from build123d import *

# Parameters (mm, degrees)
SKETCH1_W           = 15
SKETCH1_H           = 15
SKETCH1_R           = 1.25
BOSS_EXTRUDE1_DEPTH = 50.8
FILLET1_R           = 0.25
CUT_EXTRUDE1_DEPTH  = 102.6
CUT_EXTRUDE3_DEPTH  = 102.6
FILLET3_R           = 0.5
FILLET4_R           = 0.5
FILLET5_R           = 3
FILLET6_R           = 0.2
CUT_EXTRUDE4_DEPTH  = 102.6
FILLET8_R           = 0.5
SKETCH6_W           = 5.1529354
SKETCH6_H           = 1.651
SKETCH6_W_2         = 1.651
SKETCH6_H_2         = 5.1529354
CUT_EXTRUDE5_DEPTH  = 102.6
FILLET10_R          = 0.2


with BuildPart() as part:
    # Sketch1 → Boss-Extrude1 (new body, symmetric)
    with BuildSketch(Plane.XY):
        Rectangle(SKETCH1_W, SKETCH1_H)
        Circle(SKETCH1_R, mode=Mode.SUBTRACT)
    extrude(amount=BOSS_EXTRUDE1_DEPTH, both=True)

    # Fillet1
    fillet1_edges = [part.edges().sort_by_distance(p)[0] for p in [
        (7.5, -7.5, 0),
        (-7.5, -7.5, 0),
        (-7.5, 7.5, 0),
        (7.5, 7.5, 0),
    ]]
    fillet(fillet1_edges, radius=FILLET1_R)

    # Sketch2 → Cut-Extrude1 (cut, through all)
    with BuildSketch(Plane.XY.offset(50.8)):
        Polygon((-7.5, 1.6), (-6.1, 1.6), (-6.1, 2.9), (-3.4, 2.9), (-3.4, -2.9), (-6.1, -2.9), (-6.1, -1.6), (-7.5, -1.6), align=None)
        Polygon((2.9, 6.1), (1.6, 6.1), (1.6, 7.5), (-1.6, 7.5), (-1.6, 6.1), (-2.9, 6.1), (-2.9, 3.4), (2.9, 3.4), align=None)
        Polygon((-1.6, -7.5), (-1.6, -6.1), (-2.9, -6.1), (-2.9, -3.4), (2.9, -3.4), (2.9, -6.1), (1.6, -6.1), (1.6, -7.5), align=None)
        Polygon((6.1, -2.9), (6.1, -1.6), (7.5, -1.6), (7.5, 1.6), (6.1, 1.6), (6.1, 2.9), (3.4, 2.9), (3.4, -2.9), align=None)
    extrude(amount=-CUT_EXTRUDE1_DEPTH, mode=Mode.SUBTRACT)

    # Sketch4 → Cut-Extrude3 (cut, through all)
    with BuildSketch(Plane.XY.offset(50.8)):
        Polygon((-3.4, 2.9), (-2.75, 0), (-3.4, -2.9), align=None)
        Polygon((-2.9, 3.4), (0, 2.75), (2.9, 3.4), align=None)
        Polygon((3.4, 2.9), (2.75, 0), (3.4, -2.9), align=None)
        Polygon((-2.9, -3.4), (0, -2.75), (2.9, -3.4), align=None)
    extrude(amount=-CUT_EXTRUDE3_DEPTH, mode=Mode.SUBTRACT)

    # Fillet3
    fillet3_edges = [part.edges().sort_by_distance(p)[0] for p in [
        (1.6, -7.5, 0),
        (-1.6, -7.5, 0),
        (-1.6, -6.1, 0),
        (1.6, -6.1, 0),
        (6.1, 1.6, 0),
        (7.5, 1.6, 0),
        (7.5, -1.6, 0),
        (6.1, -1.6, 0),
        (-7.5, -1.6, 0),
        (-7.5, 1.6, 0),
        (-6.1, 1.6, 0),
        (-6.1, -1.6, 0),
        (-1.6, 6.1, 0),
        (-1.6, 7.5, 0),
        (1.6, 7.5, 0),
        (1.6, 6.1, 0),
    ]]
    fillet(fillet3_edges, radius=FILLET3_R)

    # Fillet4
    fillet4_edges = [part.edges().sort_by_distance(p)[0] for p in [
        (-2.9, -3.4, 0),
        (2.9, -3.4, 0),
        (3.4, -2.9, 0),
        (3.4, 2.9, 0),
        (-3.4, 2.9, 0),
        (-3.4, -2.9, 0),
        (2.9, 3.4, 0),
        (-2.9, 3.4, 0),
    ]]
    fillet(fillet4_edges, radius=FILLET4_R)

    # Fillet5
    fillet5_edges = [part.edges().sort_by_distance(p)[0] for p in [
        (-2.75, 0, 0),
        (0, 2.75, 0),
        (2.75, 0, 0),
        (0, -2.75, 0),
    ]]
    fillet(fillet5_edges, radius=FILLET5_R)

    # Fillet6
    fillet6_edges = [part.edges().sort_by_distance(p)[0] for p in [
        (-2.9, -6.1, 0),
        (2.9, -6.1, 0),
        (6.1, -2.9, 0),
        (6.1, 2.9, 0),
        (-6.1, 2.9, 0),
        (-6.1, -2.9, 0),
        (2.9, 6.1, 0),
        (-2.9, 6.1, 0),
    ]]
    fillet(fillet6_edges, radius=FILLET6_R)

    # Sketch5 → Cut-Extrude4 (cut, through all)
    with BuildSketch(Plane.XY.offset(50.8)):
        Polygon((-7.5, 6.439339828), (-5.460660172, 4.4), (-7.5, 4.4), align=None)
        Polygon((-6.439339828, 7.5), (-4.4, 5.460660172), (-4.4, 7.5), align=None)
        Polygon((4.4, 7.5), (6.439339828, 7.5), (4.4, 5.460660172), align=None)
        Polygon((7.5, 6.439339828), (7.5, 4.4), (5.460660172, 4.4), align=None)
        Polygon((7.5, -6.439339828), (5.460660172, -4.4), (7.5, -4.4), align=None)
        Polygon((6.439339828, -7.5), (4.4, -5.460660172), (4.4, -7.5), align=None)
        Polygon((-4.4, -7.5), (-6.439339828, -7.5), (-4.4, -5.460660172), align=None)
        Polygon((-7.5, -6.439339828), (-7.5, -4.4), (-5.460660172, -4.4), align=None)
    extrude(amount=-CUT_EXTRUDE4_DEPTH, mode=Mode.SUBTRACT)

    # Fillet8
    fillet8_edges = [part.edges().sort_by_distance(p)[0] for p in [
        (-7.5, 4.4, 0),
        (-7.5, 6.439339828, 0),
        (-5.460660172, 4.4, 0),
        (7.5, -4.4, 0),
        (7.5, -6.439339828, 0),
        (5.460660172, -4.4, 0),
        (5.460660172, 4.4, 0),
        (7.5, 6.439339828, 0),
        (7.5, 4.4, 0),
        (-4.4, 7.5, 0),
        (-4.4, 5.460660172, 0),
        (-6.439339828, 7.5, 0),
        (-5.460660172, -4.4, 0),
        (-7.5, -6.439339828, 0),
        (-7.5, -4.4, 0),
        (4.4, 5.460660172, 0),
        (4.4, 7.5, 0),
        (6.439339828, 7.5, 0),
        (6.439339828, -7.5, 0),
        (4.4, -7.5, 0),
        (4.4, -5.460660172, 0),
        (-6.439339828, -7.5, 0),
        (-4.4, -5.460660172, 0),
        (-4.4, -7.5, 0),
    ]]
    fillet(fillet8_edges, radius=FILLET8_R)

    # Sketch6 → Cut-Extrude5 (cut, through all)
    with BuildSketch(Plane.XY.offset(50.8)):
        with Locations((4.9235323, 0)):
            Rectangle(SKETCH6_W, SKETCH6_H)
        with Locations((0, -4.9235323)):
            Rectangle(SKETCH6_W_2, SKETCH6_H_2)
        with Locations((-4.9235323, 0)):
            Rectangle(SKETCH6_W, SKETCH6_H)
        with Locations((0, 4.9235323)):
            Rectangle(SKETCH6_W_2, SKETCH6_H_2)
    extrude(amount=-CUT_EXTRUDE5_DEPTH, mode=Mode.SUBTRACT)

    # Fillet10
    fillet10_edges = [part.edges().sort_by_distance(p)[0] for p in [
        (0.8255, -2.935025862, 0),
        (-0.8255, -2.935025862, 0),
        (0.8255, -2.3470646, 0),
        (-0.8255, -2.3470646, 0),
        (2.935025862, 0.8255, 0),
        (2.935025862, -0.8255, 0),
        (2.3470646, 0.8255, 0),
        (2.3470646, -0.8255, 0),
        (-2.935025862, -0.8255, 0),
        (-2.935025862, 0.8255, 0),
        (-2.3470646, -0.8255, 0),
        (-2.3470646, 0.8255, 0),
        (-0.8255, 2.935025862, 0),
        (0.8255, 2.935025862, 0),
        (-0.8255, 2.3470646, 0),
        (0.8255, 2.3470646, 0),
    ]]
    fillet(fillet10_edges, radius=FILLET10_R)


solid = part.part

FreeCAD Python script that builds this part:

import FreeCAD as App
import Part
import Sketcher

V = App.Vector


def edges_at(feature, points):
    """Names of the edges that pass closest to the given points."""
    edges = feature.Shape.Edges
    near = lambda p: min(range(len(edges)), key=lambda i: edges[i].distToShape(Part.Vertex(*p))[0])
    return sorted({f"Edge{near(p) + 1}" for p in points})

doc = App.newDocument("Part")
body = doc.addObject("PartDesign::Body", "Body")

# Sketch on XY plane
sketch1 = body.newObject("Sketcher::SketchObject", "Sketch")
sketch1.AttachmentSupport = (doc.getObject("XY_Plane"), [""])
sketch1.MapMode = "FlatFace"
sketch1.addGeometry(Part.LineSegment(V(-7.5, 7.5, 0), V(-7.5, -7.5, 0)), False)
sketch1.addGeometry(Part.LineSegment(V(-7.5, -7.5, 0), V(7.5, -7.5, 0)), False)
sketch1.addGeometry(Part.LineSegment(V(7.5, -7.5, 0), V(7.5, 7.5, 0)), False)
sketch1.addGeometry(Part.LineSegment(V(7.5, 7.5, 0), V(-7.5, 7.5, 0)), False)
sketch1.addGeometry(Part.Circle(V(0, 0, 0), V(0, 0, 1), 1.25), False)
sketch1.addConstraint(Sketcher.Constraint("Coincident", 0, 2, 1, 1))
sketch1.addConstraint(Sketcher.Constraint("Coincident", 1, 2, 2, 1))
sketch1.addConstraint(Sketcher.Constraint("Coincident", 2, 2, 3, 1))
sketch1.addConstraint(Sketcher.Constraint("Coincident", 3, 2, 0, 1))
sketch1.addConstraint(Sketcher.Constraint("Vertical", 0))
sketch1.addConstraint(Sketcher.Constraint("Horizontal", 1))
sketch1.addConstraint(Sketcher.Constraint("Vertical", 2))
sketch1.addConstraint(Sketcher.Constraint("Horizontal", 3))
sketch1.addConstraint(Sketcher.Constraint("Coincident", 4, 3, -1, 1))
sketch1.addConstraint(Sketcher.Constraint("Symmetric", 0, 2, 2, 2, -1, 1))
sketch1.addConstraint(Sketcher.Constraint("Equal", 3, 0))
sketch1.addConstraint(Sketcher.Constraint("Diameter", 4, 2.5))
sketch1.addConstraint(Sketcher.Constraint("DistanceX", 1, 1, 1, 2, 15.0))
pad1 = body.newObject("PartDesign::Pad", "Pad")
pad1.Profile = sketch1
pad1.Length = 101.6
pad1.Midplane = True
doc.recompute()

fillet = body.newObject("PartDesign::Fillet", "Fillet")
fillet.Base = (pad1, edges_at(pad1, [
    (7.5, -7.5, 0),
    (-7.5, -7.5, 0),
    (-7.5, 7.5, 0),
    (7.5, 7.5, 0),
]))
fillet.Radius = 0.25

# Sketch on XY plane
sketch2 = body.newObject("Sketcher::SketchObject", "Sketch001")
sketch2.AttachmentSupport = (doc.getObject("XY_Plane"), [""])
sketch2.MapMode = "FlatFace"
sketch2.AttachmentOffset = App.Placement(V(0, 0, 50.8), App.Rotation())
sketch2.addGeometry(Part.LineSegment(V(-6.1, 1.6, 0), V(-7.5, 1.6, 0)), False)
sketch2.addGeometry(Part.LineSegment(V(-7.5, 1.6, 0), V(-7.5, -1.6, 0)), False)
sketch2.addGeometry(Part.LineSegment(V(-7.5, -1.6, 0), V(-6.1, -1.6, 0)), False)
sketch2.addGeometry(Part.LineSegment(V(-6.1, -1.6, 0), V(-6.1, -2.9, 0)), False)
sketch2.addGeometry(Part.LineSegment(V(-6.1, -2.9, 0), V(-3.4, -2.9, 0)), False)
sketch2.addGeometry(Part.LineSegment(V(-3.4, -2.9, 0), V(-3.4, 2.9, 0)), False)
sketch2.addGeometry(Part.LineSegment(V(-3.4, 2.9, 0), V(-6.1, 2.9, 0)), False)
sketch2.addGeometry(Part.LineSegment(V(-6.1, 2.9, 0), V(-6.1, 1.6, 0)), False)
sketch2.addGeometry(Part.LineSegment(V(2.9, 6.1, 0), V(1.6, 6.1, 0)), False)
sketch2.addGeometry(Part.LineSegment(V(1.6, 6.1, 0), V(1.6, 7.5, 0)), False)
sketch2.addGeometry(Part.LineSegment(V(1.6, 7.5, 0), V(-1.6, 7.5, 0)), False)
sketch2.addGeometry(Part.LineSegment(V(-1.6, 7.5, 0), V(-1.6, 6.1, 0)), False)
sketch2.addGeometry(Part.LineSegment(V(-1.6, 6.1, 0), V(-2.9, 6.1, 0)), False)
sketch2.addGeometry(Part.LineSegment(V(-2.9, 6.1, 0), V(-2.9, 3.4, 0)), False)
sketch2.addGeometry(Part.LineSegment(V(-2.9, 3.4, 0), V(2.9, 3.4, 0)), False)
sketch2.addGeometry(Part.LineSegment(V(2.9, 3.4, 0), V(2.9, 6.1, 0)), False)
sketch2.addGeometry(Part.LineSegment(V(-1.6, -6.1, 0), V(-1.6, -7.5, 0)), False)
sketch2.addGeometry(Part.LineSegment(V(-1.6, -7.5, 0), V(1.6, -7.5, 0)), False)
sketch2.addGeometry(Part.LineSegment(V(1.6, -7.5, 0), V(1.6, -6.1, 0)), False)
sketch2.addGeometry(Part.LineSegment(V(1.6, -6.1, 0), V(2.9, -6.1, 0)), False)
sketch2.addGeometry(Part.LineSegment(V(2.9, -6.1, 0), V(2.9, -3.4, 0)), False)
sketch2.addGeometry(Part.LineSegment(V(2.9, -3.4, 0), V(-2.9, -3.4, 0)), False)
sketch2.addGeometry(Part.LineSegment(V(-2.9, -3.4, 0), V(-2.9, -6.1, 0)), False)
sketch2.addGeometry(Part.LineSegment(V(-2.9, -6.1, 0), V(-1.6, -6.1, 0)), False)
sketch2.addGeometry(Part.LineSegment(V(6.1, -2.9, 0), V(6.1, -1.6, 0)), False)
sketch2.addGeometry(Part.LineSegment(V(6.1, -1.6, 0), V(7.5, -1.6, 0)), False)
sketch2.addGeometry(Part.LineSegment(V(7.5, -1.6, 0), V(7.5, 1.6, 0)), False)
sketch2.addGeometry(Part.LineSegment(V(7.5, 1.6, 0), V(6.1, 1.6, 0)), False)
sketch2.addGeometry(Part.LineSegment(V(6.1, 1.6, 0), V(6.1, 2.9, 0)), False)
sketch2.addGeometry(Part.LineSegment(V(6.1, 2.9, 0), V(3.4, 2.9, 0)), False)
sketch2.addGeometry(Part.LineSegment(V(3.4, 2.9, 0), V(3.4, -2.9, 0)), False)
sketch2.addGeometry(Part.LineSegment(V(3.4, -2.9, 0), V(6.1, -2.9, 0)), False)
sketch2.addConstraint(Sketcher.Constraint("Coincident", 0, 2, 1, 1))
sketch2.addConstraint(Sketcher.Constraint("Coincident", 1, 2, 2, 1))
sketch2.addConstraint(Sketcher.Constraint("Coincident", 2, 2, 3, 1))
sketch2.addConstraint(Sketcher.Constraint("Coincident", 3, 2, 4, 1))
sketch2.addConstraint(Sketcher.Constraint("Coincident", 4, 2, 5, 1))
sketch2.addConstraint(Sketcher.Constraint("Coincident", 5, 2, 6, 1))
sketch2.addConstraint(Sketcher.Constraint("Coincident", 6, 2, 7, 1))
sketch2.addConstraint(Sketcher.Constraint("Coincident", 7, 2, 0, 1))
sketch2.addConstraint(Sketcher.Constraint("Coincident", 8, 2, 9, 1))
sketch2.addConstraint(Sketcher.Constraint("Coincident", 9, 2, 10, 1))
sketch2.addConstraint(Sketcher.Constraint("Coincident", 10, 2, 11, 1))
sketch2.addConstraint(Sketcher.Constraint("Coincident", 11, 2, 12, 1))
sketch2.addConstraint(Sketcher.Constraint("Coincident", 12, 2, 13, 1))
sketch2.addConstraint(Sketcher.Constraint("Coincident", 13, 2, 14, 1))
sketch2.addConstraint(Sketcher.Constraint("Coincident", 14, 2, 15, 1))
sketch2.addConstraint(Sketcher.Constraint("Coincident", 15, 2, 8, 1))
sketch2.addConstraint(Sketcher.Constraint("Coincident", 16, 2, 17, 1))
sketch2.addConstraint(Sketcher.Constraint("Coincident", 17, 2, 18, 1))
sketch2.addConstraint(Sketcher.Constraint("Coincident", 18, 2, 19, 1))
sketch2.addConstraint(Sketcher.Constraint("Coincident", 19, 2, 20, 1))
sketch2.addConstraint(Sketcher.Constraint("Coincident", 20, 2, 21, 1))
sketch2.addConstraint(Sketcher.Constraint("Coincident", 21, 2, 22, 1))
sketch2.addConstraint(Sketcher.Constraint("Coincident", 22, 2, 23, 1))
sketch2.addConstraint(Sketcher.Constraint("Coincident", 23, 2, 16, 1))
sketch2.addConstraint(Sketcher.Constraint("Coincident", 24, 2, 25, 1))
sketch2.addConstraint(Sketcher.Constraint("Coincident", 25, 2, 26, 1))
sketch2.addConstraint(Sketcher.Constraint("Coincident", 26, 2, 27, 1))
sketch2.addConstraint(Sketcher.Constraint("Coincident", 27, 2, 28, 1))
sketch2.addConstraint(Sketcher.Constraint("Coincident", 28, 2, 29, 1))
sketch2.addConstraint(Sketcher.Constraint("Coincident", 29, 2, 30, 1))
sketch2.addConstraint(Sketcher.Constraint("Coincident", 30, 2, 31, 1))
sketch2.addConstraint(Sketcher.Constraint("Coincident", 31, 2, 24, 1))
sketch2.addConstraint(Sketcher.Constraint("Horizontal", 0))
sketch2.addConstraint(Sketcher.Constraint("Vertical", 1))
sketch2.addConstraint(Sketcher.Constraint("Horizontal", 2))
sketch2.addConstraint(Sketcher.Constraint("Vertical", 3))
sketch2.addConstraint(Sketcher.Constraint("Horizontal", 4))
sketch2.addConstraint(Sketcher.Constraint("Vertical", 5))
sketch2.addConstraint(Sketcher.Constraint("Horizontal", 6))
sketch2.addConstraint(Sketcher.Constraint("Vertical", 7))
sketch2.addConstraint(Sketcher.Constraint("Horizontal", 8))
sketch2.addConstraint(Sketcher.Constraint("Vertical", 9))
sketch2.addConstraint(Sketcher.Constraint("Horizontal", 10))
sketch2.addConstraint(Sketcher.Constraint("Vertical", 11))
sketch2.addConstraint(Sketcher.Constraint("Horizontal", 12))
sketch2.addConstraint(Sketcher.Constraint("Vertical", 13))
sketch2.addConstraint(Sketcher.Constraint("Horizontal", 14))
sketch2.addConstraint(Sketcher.Constraint("Vertical", 15))
sketch2.addConstraint(Sketcher.Constraint("Vertical", 16))
sketch2.addConstraint(Sketcher.Constraint("Horizontal", 17))
sketch2.addConstraint(Sketcher.Constraint("Vertical", 18))
sketch2.addConstraint(Sketcher.Constraint("Horizontal", 19))
sketch2.addConstraint(Sketcher.Constraint("Vertical", 20))
sketch2.addConstraint(Sketcher.Constraint("Horizontal", 21))
sketch2.addConstraint(Sketcher.Constraint("Vertical", 22))
sketch2.addConstraint(Sketcher.Constraint("Horizontal", 23))
sketch2.addConstraint(Sketcher.Constraint("Vertical", 24))
sketch2.addConstraint(Sketcher.Constraint("Horizontal", 25))
sketch2.addConstraint(Sketcher.Constraint("Vertical", 26))
sketch2.addConstraint(Sketcher.Constraint("Horizontal", 27))
sketch2.addConstraint(Sketcher.Constraint("Vertical", 28))
sketch2.addConstraint(Sketcher.Constraint("Horizontal", 29))
sketch2.addConstraint(Sketcher.Constraint("Vertical", 30))
sketch2.addConstraint(Sketcher.Constraint("Horizontal", 31))
sketch2.addConstraint(Sketcher.Constraint("Symmetric", 9, 2, 16, 2, -1, 1))
sketch2.addConstraint(Sketcher.Constraint("Symmetric", 11, 2, 18, 2, -1, 1))
sketch2.addConstraint(Sketcher.Constraint("Symmetric", 13, 2, 20, 2, -1, 1))
sketch2.addConstraint(Sketcher.Constraint("Symmetric", 15, 2, 22, 2, -1, 1))
sketch2.addConstraint(Sketcher.Constraint("Symmetric", 7, 2, 24, 2, -1, 1))
sketch2.addConstraint(Sketcher.Constraint("Symmetric", 1, 2, 26, 2, -1, 1))
sketch2.addConstraint(Sketcher.Constraint("Symmetric", 3, 2, 28, 2, -1, 1))
sketch2.addConstraint(Sketcher.Constraint("Symmetric", 5, 2, 30, 2, -1, 1))
sketch2.addConstraint(Sketcher.Constraint("Symmetric", 8, 2, 11, 2, -2))
sketch2.addConstraint(Sketcher.Constraint("Symmetric", 2, 2, 24, 2, -2))
sketch2.addConstraint(Sketcher.Constraint("Horizontal", 6, 2, 28, 2))
sketch2.addConstraint(Sketcher.Constraint("Vertical", 15, 2, 19, 2))
sketch2.addConstraint(Sketcher.Constraint("Equal", 17, 1))
sketch2.addConstraint(Sketcher.Constraint("Equal", 23, 3))
sketch2.addConstraint(Sketcher.Constraint("Equal", 27, 9))
sketch2.addConstraint(Sketcher.Constraint("Equal", 31, 13))
sketch2.addConstraint(Sketcher.Constraint("DistanceX", 0, 2, 0, 1, 1.4))
sketch2.addConstraint(Sketcher.Constraint("DistanceX", 4, 1, 4, 2, 2.7))
sketch2.addConstraint(Sketcher.Constraint("DistanceX", 8, 2, 8, 1, 1.3))
sketch2.addConstraint(Sketcher.Constraint("DistanceX", 10, 2, 10, 1, 3.2))
sketch2.addConstraint(Sketcher.Constraint("DistanceX", 5, 2, 8, 2, 5.0))
sketch2.addConstraint(Sketcher.Constraint("DistanceY", 4, 2, 8, 2, 9.0))
pocket1 = body.newObject("PartDesign::Pocket", "Pocket")
pocket1.Profile = sketch2
pocket1.Type = "ThroughAll"

# Sketch on XY plane
sketch3 = body.newObject("Sketcher::SketchObject", "Sketch002")
sketch3.AttachmentSupport = (doc.getObject("XY_Plane"), [""])
sketch3.MapMode = "FlatFace"
sketch3.AttachmentOffset = App.Placement(V(0, 0, 50.8), App.Rotation())
sketch3.addGeometry(Part.LineSegment(V(-2.75, 0, 0), V(-3.4, 2.9, 0)), False)
sketch3.addGeometry(Part.LineSegment(V(-3.4, 2.9, 0), V(-3.4, -2.9, 0)), False)
sketch3.addGeometry(Part.LineSegment(V(-3.4, -2.9, 0), V(-2.75, 0, 0)), False)
sketch3.addGeometry(Part.LineSegment(V(-2.9, 3.4, 0), V(0, 2.75, 0)), False)
sketch3.addGeometry(Part.LineSegment(V(0, 2.75, 0), V(2.9, 3.4, 0)), False)
sketch3.addGeometry(Part.LineSegment(V(2.9, 3.4, 0), V(-2.9, 3.4, 0)), False)
sketch3.addGeometry(Part.LineSegment(V(3.4, 2.9, 0), V(2.75, 0, 0)), False)
sketch3.addGeometry(Part.LineSegment(V(2.75, 0, 0), V(3.4, -2.9, 0)), False)
sketch3.addGeometry(Part.LineSegment(V(3.4, -2.9, 0), V(3.4, 2.9, 0)), False)
sketch3.addGeometry(Part.LineSegment(V(0, -2.75, 0), V(-2.9, -3.4, 0)), False)
sketch3.addGeometry(Part.LineSegment(V(-2.9, -3.4, 0), V(2.9, -3.4, 0)), False)
sketch3.addGeometry(Part.LineSegment(V(2.9, -3.4, 0), V(0, -2.75, 0)), False)
sketch3.addConstraint(Sketcher.Constraint("Coincident", 0, 2, 1, 1))
sketch3.addConstraint(Sketcher.Constraint("Coincident", 1, 2, 2, 1))
sketch3.addConstraint(Sketcher.Constraint("Coincident", 2, 2, 0, 1))
sketch3.addConstraint(Sketcher.Constraint("Coincident", 3, 2, 4, 1))
sketch3.addConstraint(Sketcher.Constraint("Coincident", 4, 2, 5, 1))
sketch3.addConstraint(Sketcher.Constraint("Coincident", 5, 2, 3, 1))
sketch3.addConstraint(Sketcher.Constraint("Coincident", 6, 2, 7, 1))
sketch3.addConstraint(Sketcher.Constraint("Coincident", 7, 2, 8, 1))
sketch3.addConstraint(Sketcher.Constraint("Coincident", 8, 2, 6, 1))
sketch3.addConstraint(Sketcher.Constraint("Coincident", 9, 2, 10, 1))
sketch3.addConstraint(Sketcher.Constraint("Coincident", 10, 2, 11, 1))
sketch3.addConstraint(Sketcher.Constraint("Coincident", 11, 2, 9, 1))
sketch3.addConstraint(Sketcher.Constraint("Vertical", 1))
sketch3.addConstraint(Sketcher.Constraint("Horizontal", 5))
sketch3.addConstraint(Sketcher.Constraint("Vertical", 8))
sketch3.addConstraint(Sketcher.Constraint("Horizontal", 10))
sketch3.addConstraint(Sketcher.Constraint("Symmetric", 2, 2, 6, 2, -1, 1))
sketch3.addConstraint(Sketcher.Constraint("Symmetric", 0, 2, 7, 2, -1, 1))
sketch3.addConstraint(Sketcher.Constraint("Symmetric", 4, 2, 9, 2, -1, 1))
sketch3.addConstraint(Sketcher.Constraint("Symmetric", 3, 2, 11, 2, -1, 1))
sketch3.addConstraint(Sketcher.Constraint("PointOnObject", 2, 2, -1))
sketch3.addConstraint(Sketcher.Constraint("PointOnObject", 3, 2, -2))
sketch3.addConstraint(Sketcher.Constraint("Perpendicular", 2, 3))
sketch3.addConstraint(Sketcher.Constraint("Perpendicular", 0, 4))
sketch3.addConstraint(Sketcher.Constraint("Perpendicular", 3, 6))
sketch3.addConstraint(Sketcher.Constraint("Perpendicular", 6, 11))
sketch3.addConstraint(Sketcher.Constraint("Horizontal", 1, 2, 7, 2))
sketch3.addConstraint(Sketcher.Constraint("Equal", 10, 1))
sketch3.addConstraint(Sketcher.Constraint("DistanceX", 5, 2, 5, 1, 5.8))
sketch3.addConstraint(Sketcher.Constraint("DistanceX", 0, 2, -1, 1, 3.4))
sketch3.addConstraint(Sketcher.Constraint("DistanceY", -1, 1, 4, 2, 3.4))
sketch3.addConstraint(Sketcher.Constraint("DistanceX", 2, 2, 6, 2, 5.5))
pocket2 = body.newObject("PartDesign::Pocket", "Pocket001")
pocket2.Profile = sketch3
pocket2.Type = "ThroughAll"
doc.recompute()

fillet2 = body.newObject("PartDesign::Fillet", "Fillet001")
fillet2.Base = (pocket2, edges_at(pocket2, [
    (1.6, -7.5, 0),
    (-1.6, -7.5, 0),
    (-1.6, -6.1, 0),
    (1.6, -6.1, 0),
    (6.1, 1.6, 0),
    (7.5, 1.6, 0),
    (7.5, -1.6, 0),
    (6.1, -1.6, 0),
    (-7.5, -1.6, 0),
    (-7.5, 1.6, 0),
    (-6.1, 1.6, 0),
    (-6.1, -1.6, 0),
    (-1.6, 6.1, 0),
    (-1.6, 7.5, 0),
    (1.6, 7.5, 0),
    (1.6, 6.1, 0),
]))
fillet2.Radius = 0.5
doc.recompute()

fillet3 = body.newObject("PartDesign::Fillet", "Fillet002")
fillet3.Base = (fillet2, edges_at(fillet2, [
    (-2.9, -3.4, 0),
    (2.9, -3.4, 0),
    (3.4, -2.9, 0),
    (3.4, 2.9, 0),
    (-3.4, 2.9, 0),
    (-3.4, -2.9, 0),
    (2.9, 3.4, 0),
    (-2.9, 3.4, 0),
]))
fillet3.Radius = 0.5
doc.recompute()

fillet4 = body.newObject("PartDesign::Fillet", "Fillet003")
fillet4.Base = (fillet3, edges_at(fillet3, [
    (-2.75, 0, 0),
    (0, 2.75, 0),
    (2.75, 0, 0),
    (0, -2.75, 0),
]))
fillet4.Radius = 3
doc.recompute()

fillet5 = body.newObject("PartDesign::Fillet", "Fillet004")
fillet5.Base = (fillet4, edges_at(fillet4, [
    (-2.9, -6.1, 0),
    (2.9, -6.1, 0),
    (6.1, -2.9, 0),
    (6.1, 2.9, 0),
    (-6.1, 2.9, 0),
    (-6.1, -2.9, 0),
    (2.9, 6.1, 0),
    (-2.9, 6.1, 0),
]))
fillet5.Radius = 0.2

# Sketch on XY plane
sketch4 = body.newObject("Sketcher::SketchObject", "Sketch003")
sketch4.AttachmentSupport = (doc.getObject("XY_Plane"), [""])
sketch4.MapMode = "FlatFace"
sketch4.AttachmentOffset = App.Placement(V(0, 0, 50.8), App.Rotation())
sketch4.addGeometry(Part.LineSegment(V(-5.46066, 4.4, 0), V(-7.5, 6.43934, 0)), False)
sketch4.addGeometry(Part.LineSegment(V(-7.5, 6.43934, 0), V(-7.5, 4.4, 0)), False)
sketch4.addGeometry(Part.LineSegment(V(-7.5, 4.4, 0), V(-5.46066, 4.4, 0)), False)
sketch4.addGeometry(Part.LineSegment(V(-6.43934, 7.5, 0), V(-4.4, 5.46066, 0)), False)
sketch4.addGeometry(Part.LineSegment(V(-4.4, 5.46066, 0), V(-4.4, 7.5, 0)), False)
sketch4.addGeometry(Part.LineSegment(V(-4.4, 7.5, 0), V(-6.43934, 7.5, 0)), False)
sketch4.addGeometry(Part.LineSegment(V(6.43934, 7.5, 0), V(4.4, 7.5, 0)), False)
sketch4.addGeometry(Part.LineSegment(V(4.4, 7.5, 0), V(4.4, 5.46066, 0)), False)
sketch4.addGeometry(Part.LineSegment(V(4.4, 5.46066, 0), V(6.43934, 7.5, 0)), False)
sketch4.addGeometry(Part.LineSegment(V(7.5, 4.4, 0), V(7.5, 6.43934, 0)), False)
sketch4.addGeometry(Part.LineSegment(V(7.5, 6.43934, 0), V(5.46066, 4.4, 0)), False)
sketch4.addGeometry(Part.LineSegment(V(5.46066, 4.4, 0), V(7.5, 4.4, 0)), False)
sketch4.addGeometry(Part.LineSegment(V(5.46066, -4.4, 0), V(7.5, -6.43934, 0)), False)
sketch4.addGeometry(Part.LineSegment(V(7.5, -6.43934, 0), V(7.5, -4.4, 0)), False)
sketch4.addGeometry(Part.LineSegment(V(7.5, -4.4, 0), V(5.46066, -4.4, 0)), False)
sketch4.addGeometry(Part.LineSegment(V(6.43934, -7.5, 0), V(4.4, -5.46066, 0)), False)
sketch4.addGeometry(Part.LineSegment(V(4.4, -5.46066, 0), V(4.4, -7.5, 0)), False)
sketch4.addGeometry(Part.LineSegment(V(4.4, -7.5, 0), V(6.43934, -7.5, 0)), False)
sketch4.addGeometry(Part.LineSegment(V(-6.43934, -7.5, 0), V(-4.4, -7.5, 0)), False)
sketch4.addGeometry(Part.LineSegment(V(-4.4, -7.5, 0), V(-4.4, -5.46066, 0)), False)
sketch4.addGeometry(Part.LineSegment(V(-4.4, -5.46066, 0), V(-6.43934, -7.5, 0)), False)
sketch4.addGeometry(Part.LineSegment(V(-7.5, -4.4, 0), V(-7.5, -6.43934, 0)), False)
sketch4.addGeometry(Part.LineSegment(V(-7.5, -6.43934, 0), V(-5.46066, -4.4, 0)), False)
sketch4.addGeometry(Part.LineSegment(V(-5.46066, -4.4, 0), V(-7.5, -4.4, 0)), False)
sketch4.addConstraint(Sketcher.Constraint("Coincident", 0, 2, 1, 1))
sketch4.addConstraint(Sketcher.Constraint("Coincident", 1, 2, 2, 1))
sketch4.addConstraint(Sketcher.Constraint("Coincident", 2, 2, 0, 1))
sketch4.addConstraint(Sketcher.Constraint("Coincident", 3, 2, 4, 1))
sketch4.addConstraint(Sketcher.Constraint("Coincident", 4, 2, 5, 1))
sketch4.addConstraint(Sketcher.Constraint("Coincident", 5, 2, 3, 1))
sketch4.addConstraint(Sketcher.Constraint("Coincident", 6, 2, 7, 1))
sketch4.addConstraint(Sketcher.Constraint("Coincident", 7, 2, 8, 1))
sketch4.addConstraint(Sketcher.Constraint("Coincident", 8, 2, 6, 1))
sketch4.addConstraint(Sketcher.Constraint("Coincident", 9, 2, 10, 1))
sketch4.addConstraint(Sketcher.Constraint("Coincident", 10, 2, 11, 1))
sketch4.addConstraint(Sketcher.Constraint("Coincident", 11, 2, 9, 1))
sketch4.addConstraint(Sketcher.Constraint("Coincident", 12, 2, 13, 1))
sketch4.addConstraint(Sketcher.Constraint("Coincident", 13, 2, 14, 1))
sketch4.addConstraint(Sketcher.Constraint("Coincident", 14, 2, 12, 1))
sketch4.addConstraint(Sketcher.Constraint("Coincident", 15, 2, 16, 1))
sketch4.addConstraint(Sketcher.Constraint("Coincident", 16, 2, 17, 1))
sketch4.addConstraint(Sketcher.Constraint("Coincident", 17, 2, 15, 1))
sketch4.addConstraint(Sketcher.Constraint("Coincident", 18, 2, 19, 1))
sketch4.addConstraint(Sketcher.Constraint("Coincident", 19, 2, 20, 1))
sketch4.addConstraint(Sketcher.Constraint("Coincident", 20, 2, 18, 1))
sketch4.addConstraint(Sketcher.Constraint("Coincident", 21, 2, 22, 1))
sketch4.addConstraint(Sketcher.Constraint("Coincident", 22, 2, 23, 1))
sketch4.addConstraint(Sketcher.Constraint("Coincident", 23, 2, 21, 1))
sketch4.addConstraint(Sketcher.Constraint("Vertical", 1))
sketch4.addConstraint(Sketcher.Constraint("Horizontal", 2))
sketch4.addConstraint(Sketcher.Constraint("Vertical", 4))
sketch4.addConstraint(Sketcher.Constraint("Horizontal", 5))
sketch4.addConstraint(Sketcher.Constraint("Horizontal", 6))
sketch4.addConstraint(Sketcher.Constraint("Vertical", 7))
sketch4.addConstraint(Sketcher.Constraint("Vertical", 9))
sketch4.addConstraint(Sketcher.Constraint("Horizontal", 11))
sketch4.addConstraint(Sketcher.Constraint("Vertical", 13))
sketch4.addConstraint(Sketcher.Constraint("Horizontal", 14))
sketch4.addConstraint(Sketcher.Constraint("Vertical", 16))
sketch4.addConstraint(Sketcher.Constraint("Horizontal", 17))
sketch4.addConstraint(Sketcher.Constraint("Horizontal", 18))
sketch4.addConstraint(Sketcher.Constraint("Vertical", 19))
sketch4.addConstraint(Sketcher.Constraint("Vertical", 21))
sketch4.addConstraint(Sketcher.Constraint("Horizontal", 23))
sketch4.addConstraint(Sketcher.Constraint("Symmetric", 0, 2, 12, 2, -1, 1))
sketch4.addConstraint(Sketcher.Constraint("Symmetric", 2, 2, 14, 2, -1, 1))
sketch4.addConstraint(Sketcher.Constraint("Symmetric", 3, 2, 15, 2, -1, 1))
sketch4.addConstraint(Sketcher.Constraint("Symmetric", 5, 2, 17, 2, -1, 1))
sketch4.addConstraint(Sketcher.Constraint("Symmetric", 6, 2, 18, 2, -1, 1))
sketch4.addConstraint(Sketcher.Constraint("Symmetric", 9, 2, 21, 2, -1, 1))
sketch4.addConstraint(Sketcher.Constraint("Symmetric", 10, 2, 22, 2, -1, 1))
sketch4.addConstraint(Sketcher.Constraint("Symmetric", 4, 2, 6, 2, -2))
sketch4.addConstraint(Sketcher.Constraint("Symmetric", 0, 2, 9, 2, -2))
sketch4.addConstraint(Sketcher.Constraint("Symmetric", 2, 2, 10, 2, -2))
sketch4.addConstraint(Sketcher.Constraint("Parallel", 0, 3))
sketch4.addConstraint(Sketcher.Constraint("Perpendicular", 3, 8))
sketch4.addConstraint(Sketcher.Constraint("Parallel", 8, 10))
sketch4.addConstraint(Sketcher.Constraint("Perpendicular", 15, 20))
sketch4.addConstraint(Sketcher.Constraint("Horizontal", 3, 2, 7, 2))
sketch4.addConstraint(Sketcher.Constraint("Horizontal", 15, 2, 19, 2))
sketch4.addConstraint(Sketcher.Constraint("Equal", 2, 5))
sketch4.addConstraint(Sketcher.Constraint("DistanceX", 0, 2, -1, 1, 7.5))
sketch4.addConstraint(Sketcher.Constraint("DistanceY", -1, 1, 1, 2, 4.4))
sketch4.addConstraint(Sketcher.Constraint("DistanceX", 3, 2, -1, 1, 4.4))
sketch4.addConstraint(Sketcher.Constraint("DistanceY", -1, 1, 4, 2, 7.5))
sketch4.addConstraint(Sketcher.Constraint("DistanceX", 2, 1, 2, 2, 2.03934))
pocket3 = body.newObject("PartDesign::Pocket", "Pocket002")
pocket3.Profile = sketch4
pocket3.Type = "ThroughAll"
doc.recompute()

fillet6 = body.newObject("PartDesign::Fillet", "Fillet005")
fillet6.Base = (pocket3, edges_at(pocket3, [
    (-7.5, 4.4, 0),
    (-7.5, 6.439, 0),
    (-5.461, 4.4, 0),
    (7.5, -4.4, 0),
    (7.5, -6.439, 0),
    (5.461, -4.4, 0),
    (5.461, 4.4, 0),
    (7.5, 6.439, 0),
    (7.5, 4.4, 0),
    (-4.4, 7.5, 0),
    (-4.4, 5.461, 0),
    (-6.439, 7.5, 0),
    (-5.461, -4.4, 0),
    (-7.5, -6.439, 0),
    (-7.5, -4.4, 0),
    (4.4, 5.461, 0),
    (4.4, 7.5, 0),
    (6.439, 7.5, 0),
    (6.439, -7.5, 0),
    (4.4, -7.5, 0),
    (4.4, -5.461, 0),
    (-6.439, -7.5, 0),
    (-4.4, -5.461, 0),
    (-4.4, -7.5, 0),
]))
fillet6.Radius = 0.5

# Sketch on XY plane
sketch5 = body.newObject("Sketcher::SketchObject", "Sketch004")
sketch5.AttachmentSupport = (doc.getObject("XY_Plane"), [""])
sketch5.MapMode = "FlatFace"
sketch5.AttachmentOffset = App.Placement(V(0, 0, 50.8), App.Rotation())
sketch5.addGeometry(Part.LineSegment(V(2.347065, 0.8255, 0), V(2.347065, -0.8255, 0)), False)
sketch5.addGeometry(Part.LineSegment(V(2.347065, -0.8255, 0), V(7.5, -0.8255, 0)), False)
sketch5.addGeometry(Part.LineSegment(V(7.5, -0.8255, 0), V(7.5, 0.8255, 0)), False)
sketch5.addGeometry(Part.LineSegment(V(7.5, 0.8255, 0), V(2.347065, 0.8255, 0)), False)
sketch5.addGeometry(Part.LineSegment(V(-0.8255, -2.347065, 0), V(-0.8255, -7.5, 0)), False)
sketch5.addGeometry(Part.LineSegment(V(-0.8255, -7.5, 0), V(0.8255, -7.5, 0)), False)
sketch5.addGeometry(Part.LineSegment(V(0.8255, -7.5, 0), V(0.8255, -2.347065, 0)), False)
sketch5.addGeometry(Part.LineSegment(V(0.8255, -2.347065, 0), V(-0.8255, -2.347065, 0)), False)
sketch5.addGeometry(Part.LineSegment(V(-7.5, 0.8255, 0), V(-7.5, -0.8255, 0)), False)
sketch5.addGeometry(Part.LineSegment(V(-7.5, -0.8255, 0), V(-2.347065, -0.8255, 0)), False)
sketch5.addGeometry(Part.LineSegment(V(-2.347065, -0.8255, 0), V(-2.347065, 0.8255, 0)), False)
sketch5.addGeometry(Part.LineSegment(V(-2.347065, 0.8255, 0), V(-7.5, 0.8255, 0)), False)
sketch5.addGeometry(Part.LineSegment(V(-0.8255, 7.5, 0), V(-0.8255, 2.347065, 0)), False)
sketch5.addGeometry(Part.LineSegment(V(-0.8255, 2.347065, 0), V(0.8255, 2.347065, 0)), False)
sketch5.addGeometry(Part.LineSegment(V(0.8255, 2.347065, 0), V(0.8255, 7.5, 0)), False)
sketch5.addGeometry(Part.LineSegment(V(0.8255, 7.5, 0), V(-0.8255, 7.5, 0)), False)
sketch5.addConstraint(Sketcher.Constraint("Coincident", 0, 2, 1, 1))
sketch5.addConstraint(Sketcher.Constraint("Coincident", 1, 2, 2, 1))
sketch5.addConstraint(Sketcher.Constraint("Coincident", 2, 2, 3, 1))
sketch5.addConstraint(Sketcher.Constraint("Coincident", 3, 2, 0, 1))
sketch5.addConstraint(Sketcher.Constraint("Coincident", 4, 2, 5, 1))
sketch5.addConstraint(Sketcher.Constraint("Coincident", 5, 2, 6, 1))
sketch5.addConstraint(Sketcher.Constraint("Coincident", 6, 2, 7, 1))
sketch5.addConstraint(Sketcher.Constraint("Coincident", 7, 2, 4, 1))
sketch5.addConstraint(Sketcher.Constraint("Coincident", 8, 2, 9, 1))
sketch5.addConstraint(Sketcher.Constraint("Coincident", 9, 2, 10, 1))
sketch5.addConstraint(Sketcher.Constraint("Coincident", 10, 2, 11, 1))
sketch5.addConstraint(Sketcher.Constraint("Coincident", 11, 2, 8, 1))
sketch5.addConstraint(Sketcher.Constraint("Coincident", 12, 2, 13, 1))
sketch5.addConstraint(Sketcher.Constraint("Coincident", 13, 2, 14, 1))
sketch5.addConstraint(Sketcher.Constraint("Coincident", 14, 2, 15, 1))
sketch5.addConstraint(Sketcher.Constraint("Coincident", 15, 2, 12, 1))
sketch5.addConstraint(Sketcher.Constraint("Vertical", 0))
sketch5.addConstraint(Sketcher.Constraint("Horizontal", 1))
sketch5.addConstraint(Sketcher.Constraint("Vertical", 2))
sketch5.addConstraint(Sketcher.Constraint("Horizontal", 3))
sketch5.addConstraint(Sketcher.Constraint("Vertical", 4))
sketch5.addConstraint(Sketcher.Constraint("Horizontal", 5))
sketch5.addConstraint(Sketcher.Constraint("Vertical", 6))
sketch5.addConstraint(Sketcher.Constraint("Horizontal", 7))
sketch5.addConstraint(Sketcher.Constraint("Vertical", 8))
sketch5.addConstraint(Sketcher.Constraint("Horizontal", 9))
sketch5.addConstraint(Sketcher.Constraint("Vertical", 10))
sketch5.addConstraint(Sketcher.Constraint("Horizontal", 11))
sketch5.addConstraint(Sketcher.Constraint("Vertical", 12))
sketch5.addConstraint(Sketcher.Constraint("Horizontal", 13))
sketch5.addConstraint(Sketcher.Constraint("Vertical", 14))
sketch5.addConstraint(Sketcher.Constraint("Horizontal", 15))
sketch5.addConstraint(Sketcher.Constraint("Symmetric", 2, 2, 8, 2, -1, 1))
sketch5.addConstraint(Sketcher.Constraint("Symmetric", 0, 2, 10, 2, -1, 1))
sketch5.addConstraint(Sketcher.Constraint("Symmetric", 6, 2, 12, 2, -1, 1))
sketch5.addConstraint(Sketcher.Constraint("Symmetric", 4, 2, 14, 2, -1, 1))
sketch5.addConstraint(Sketcher.Constraint("Horizontal", 1, 2, 8, 2))
sketch5.addConstraint(Sketcher.Constraint("Vertical", 7, 2, 12, 2))
sketch5.addConstraint(Sketcher.Constraint("Equal", 15, 0))
sketch5.addConstraint(Sketcher.Constraint("Equal", 11, 4))
sketch5.addConstraint(Sketcher.Constraint("DistanceX", -1, 1, 1, 2, 7.5))
sketch5.addConstraint(Sketcher.Constraint("DistanceY", 4, 2, -1, 1, 7.5))
sketch5.addConstraint(Sketcher.Constraint("DistanceX", 5, 1, 5, 2, 1.651))
sketch5.addConstraint(Sketcher.Constraint("DistanceX", 1, 1, 1, 2, 5.152935))
pocket4 = body.newObject("PartDesign::Pocket", "Pocket003")
pocket4.Profile = sketch5
pocket4.Type = "ThroughAll"
doc.recompute()

fillet7 = body.newObject("PartDesign::Fillet", "Fillet006")
fillet7.Base = (pocket4, edges_at(pocket4, [
    (0.826, -2.935, 0),
    (-0.826, -2.935, 0),
    (0.826, -2.347, 0),
    (-0.826, -2.347, 0),
    (2.935, 0.826, 0),
    (2.935, -0.826, 0),
    (2.347, 0.826, 0),
    (2.347, -0.826, 0),
    (-2.935, -0.826, 0),
    (-2.935, 0.826, 0),
    (-2.347, -0.826, 0),
    (-2.347, 0.826, 0),
    (-0.826, 2.935, 0),
    (0.826, 2.935, 0),
    (-0.826, 2.347, 0),
    (0.826, 2.347, 0),
]))
fillet7.Radius = 0.2

doc.recompute()
